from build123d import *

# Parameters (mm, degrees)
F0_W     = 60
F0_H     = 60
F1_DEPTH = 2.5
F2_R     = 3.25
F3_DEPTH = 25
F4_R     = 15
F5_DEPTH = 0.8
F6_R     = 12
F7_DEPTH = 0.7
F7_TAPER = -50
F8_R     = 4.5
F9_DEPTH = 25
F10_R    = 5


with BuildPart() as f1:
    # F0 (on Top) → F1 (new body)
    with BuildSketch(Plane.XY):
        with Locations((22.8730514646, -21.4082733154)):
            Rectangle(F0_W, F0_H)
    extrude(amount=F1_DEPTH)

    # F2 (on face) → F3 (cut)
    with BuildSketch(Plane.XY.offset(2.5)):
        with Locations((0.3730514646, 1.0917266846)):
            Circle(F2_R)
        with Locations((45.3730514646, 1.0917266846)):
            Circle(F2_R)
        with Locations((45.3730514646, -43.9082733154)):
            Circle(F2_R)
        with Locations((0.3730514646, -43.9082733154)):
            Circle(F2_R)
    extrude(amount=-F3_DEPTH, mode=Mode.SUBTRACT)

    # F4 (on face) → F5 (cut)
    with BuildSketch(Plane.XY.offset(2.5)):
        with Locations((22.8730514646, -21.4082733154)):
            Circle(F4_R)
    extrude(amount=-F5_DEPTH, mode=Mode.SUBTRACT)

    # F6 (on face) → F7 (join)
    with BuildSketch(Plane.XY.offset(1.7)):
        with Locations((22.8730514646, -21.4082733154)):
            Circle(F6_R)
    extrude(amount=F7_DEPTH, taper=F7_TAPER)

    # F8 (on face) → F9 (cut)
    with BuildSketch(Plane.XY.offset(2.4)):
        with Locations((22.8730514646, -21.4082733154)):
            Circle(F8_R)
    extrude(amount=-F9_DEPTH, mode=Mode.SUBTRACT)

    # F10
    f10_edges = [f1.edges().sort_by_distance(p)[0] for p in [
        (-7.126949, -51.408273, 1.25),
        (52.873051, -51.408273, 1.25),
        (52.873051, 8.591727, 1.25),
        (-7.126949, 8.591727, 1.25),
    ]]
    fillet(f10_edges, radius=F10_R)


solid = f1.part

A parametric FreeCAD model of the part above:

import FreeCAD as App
import Part
import Sketcher
from FreeCAD import Vector


def edges_at(feature, points):
    """Names of the edges that pass closest to the given points."""
    edges = feature.Shape.Edges
    near = lambda p: min(range(len(edges)), key=lambda i: edges[i].distToShape(Part.Vertex(*p))[0])
    return sorted({f"Edge{near(p) + 1}" for p in points})

doc = App.newDocument("Part")
body = doc.addObject("PartDesign::Body", "Body")

# Sketch on XY plane
sketch1 = body.newObject("Sketcher::SketchObject", "Sketch")
sketch1.AttachmentSupport = (doc.getObject("XY_Plane"), [""])
sketch1.MapMode = "FlatFace"
sketch1.addGeometry(Part.LineSegment(Vector(-7, 9, 0), Vector(-7, -51, 0)), False)
sketch1.addGeometry(Part.LineSegment(Vector(-7, -51, 0), Vector(53, -51, 0)), False)
sketch1.addGeometry(Part.LineSegment(Vector(53, -51, 0), Vector(53, 9, 0)), False)
sketch1.addGeometry(Part.LineSegment(Vector(53, 9, 0), Vector(-7, 9, 0)), False)
sketch1.addConstraint(Sketcher.Constraint("Coincident", 0, 2, 1, 1))
sketch1.addConstraint(Sketcher.Constraint("Coincident", 1, 2, 2, 1))
sketch1.addConstraint(Sketcher.Constraint("Coincident", 2, 2, 3, 1))
sketch1.addConstraint(Sketcher.Constraint("Coincident", 3, 2, 0, 1))
sketch1.addConstraint(Sketcher.Constraint("Vertical", 0))
sketch1.addConstraint(Sketcher.Constraint("Horizontal", 1))
sketch1.addConstraint(Sketcher.Constraint("Vertical", 2))
sketch1.addConstraint(Sketcher.Constraint("Horizontal", 3))
sketch1.addConstraint(Sketcher.Constraint("Equal", 3, 0))
sketch1.addConstraint(Sketcher.Constraint("DistanceX", 1, 1, 1, 2, 60.0))
sketch1.addConstraint(Sketcher.Constraint("DistanceX", 0, 2, -1, 1, 7.126949))
sketch1.addConstraint(Sketcher.Constraint("DistanceY", 0, 2, -1, 1, 51.408273))
pad1 = body.newObject("PartDesign::Pad", "Pad")
pad1.Profile = sketch1
pad1.Length = 2.5

# Sketch on XY plane
sketch2 = body.newObject("Sketcher::SketchObject", "Sketch001")
sketch2.AttachmentSupport = (doc.getObject("XY_Plane"), [""])
sketch2.MapMode = "FlatFace"
sketch2.AttachmentOffset = App.Placement(Vector(0, 0, 2.5), App.Rotation())
sketch2.addGeometry(Part.Circle(Vector(0.4, 1.1, 0), Vector(0, 0, 1), 3.2), False)
sketch2.addGeometry(Part.Circle(Vector(45.4, 1.1, 0), Vector(0, 0, 1), 3.2), False)
sketch2.addGeometry(Part.Circle(Vector(45.4, -43.9, 0), Vector(0, 0, 1), 3.2), False)
sketch2.addGeometry(Part.Circle(Vector(0.4, -43.9, 0), Vector(0, 0, 1), 3.2), False)
sketch2.addConstraint(Sketcher.Constraint("Equal", 0, 1))
sketch2.addConstraint(Sketcher.Constraint("Equal", 1, 2))
sketch2.addConstraint(Sketcher.Constraint("Equal", 2, 3))
sketch2.addConstraint(Sketcher.Constraint("Horizontal", 0, 3, 1, 3))
sketch2.addConstraint(Sketcher.Constraint("Horizontal", 2, 3, 3, 3))
sketch2.addConstraint(Sketcher.Constraint("Vertical", 1, 3, 2, 3))
sketch2.addConstraint(Sketcher.Constraint("Vertical", 0, 3, 3, 3))
sketch2.addConstraint(Sketcher.Constraint("Diameter", 0, 6.5))
sketch2.addConstraint(Sketcher.Constraint("DistanceX", 0, 3, 1, 3, 45.0))
sketch2.addConstraint(Sketcher.Constraint("DistanceY", 2, 3, 1, 3, 45.0))
sketch2.addConstraint(Sketcher.Constraint("DistanceX", -1, 1, 0, 3, 0.373051))
sketch2.addConstraint(Sketcher.Constraint("DistanceY", -1, 1, 0, 3, 1.091727))
pocket1 = body.newObject("PartDesign::Pocket", "Pocket")
pocket1.Profile = sketch2
pocket1.Length = 25

# Sketch on XY plane
sketch3 = body.newObject("Sketcher::SketchObject", "Sketch002")
sketch3.AttachmentSupport = (doc.getObject("XY_Plane"), [""])
sketch3.MapMode = "FlatFace"
sketch3.AttachmentOffset = App.Placement(Vector(0, 0, 2.5), App.Rotation())
sketch3.addGeometry(Part.Circle(Vector(23, -21, 0), Vector(0, 0, 1), 15), False)
sketch3.addConstraint(Sketcher.Constraint("Diameter", 0, 30.0))
sketch3.addConstraint(Sketcher.Constraint("DistanceX", -1, 1, 0, 3, 22.873051))
sketch3.addConstraint(Sketcher.Constraint("DistanceY", 0, 3, -1, 1, 21.408273))
pocket2 = body.newObject("PartDesign::Pocket", "Pocket001")
pocket2.Profile = sketch3
pocket2.Length = 0.8

# Sketch on XY plane
sketch4 = body.newObject("Sketcher::SketchObject", "Sketch003")
sketch4.AttachmentSupport = (doc.getObject("XY_Plane"), [""])
sketch4.MapMode = "FlatFace"
sketch4.AttachmentOffset = App.Placement(Vector(0, 0, 1.7), App.Rotation())
sketch4.addGeometry(Part.Circle(Vector(23, -21, 0), Vector(0, 0, 1), 12), False)
sketch4.addConstraint(Sketcher.Constraint("Diameter", 0, 24.0))
sketch4.addConstraint(Sketcher.Constraint("DistanceX", -1, 1, 0, 3, 22.873051))
sketch4.addConstraint(Sketcher.Constraint("DistanceY", 0, 3, -1, 1, 21.408273))
pad2 = body.newObject("PartDesign::Pad", "Pad001")
pad2.Profile = sketch4
pad2.Length = 0.7
pad2.TaperAngle = 50

# Sketch on XY plane
sketch5 = body.newObject("Sketcher::SketchObject", "Sketch004")
sketch5.AttachmentSupport = (doc.getObject("XY_Plane"), [""])
sketch5.MapMode = "FlatFace"
sketch5.AttachmentOffset = App.Placement(Vector(0, 0, 2.4), App.Rotation())
sketch5.addGeometry(Part.Circle(Vector(22.9, -21.4, 0), Vector(0, 0, 1), 4.5), False)
sketch5.addConstraint(Sketcher.Constraint("Diameter", 0, 9.0))
sketch5.addConstraint(Sketcher.Constraint("DistanceX", -1, 1, 0, 3, 22.873051))
sketch5.addConstraint(Sketcher.Constraint("DistanceY", 0, 3, -1, 1, 21.408273))
pocket3 = body.newObject("PartDesign::Pocket", "Pocket002")
pocket3.Profile = sketch5
pocket3.Length = 25
doc.recompute()

fillet = body.newObject("PartDesign::Fillet", "Fillet")
fillet.Base = (pocket3, edges_at(pocket3, [
    (-7.127, -51.408, 1.25),
    (52.873, -51.408, 1.25),
    (52.873, 8.592, 1.25),
    (-7.127, 8.592, 1.25),
]))
fillet.Radius = 5

doc.recompute()
